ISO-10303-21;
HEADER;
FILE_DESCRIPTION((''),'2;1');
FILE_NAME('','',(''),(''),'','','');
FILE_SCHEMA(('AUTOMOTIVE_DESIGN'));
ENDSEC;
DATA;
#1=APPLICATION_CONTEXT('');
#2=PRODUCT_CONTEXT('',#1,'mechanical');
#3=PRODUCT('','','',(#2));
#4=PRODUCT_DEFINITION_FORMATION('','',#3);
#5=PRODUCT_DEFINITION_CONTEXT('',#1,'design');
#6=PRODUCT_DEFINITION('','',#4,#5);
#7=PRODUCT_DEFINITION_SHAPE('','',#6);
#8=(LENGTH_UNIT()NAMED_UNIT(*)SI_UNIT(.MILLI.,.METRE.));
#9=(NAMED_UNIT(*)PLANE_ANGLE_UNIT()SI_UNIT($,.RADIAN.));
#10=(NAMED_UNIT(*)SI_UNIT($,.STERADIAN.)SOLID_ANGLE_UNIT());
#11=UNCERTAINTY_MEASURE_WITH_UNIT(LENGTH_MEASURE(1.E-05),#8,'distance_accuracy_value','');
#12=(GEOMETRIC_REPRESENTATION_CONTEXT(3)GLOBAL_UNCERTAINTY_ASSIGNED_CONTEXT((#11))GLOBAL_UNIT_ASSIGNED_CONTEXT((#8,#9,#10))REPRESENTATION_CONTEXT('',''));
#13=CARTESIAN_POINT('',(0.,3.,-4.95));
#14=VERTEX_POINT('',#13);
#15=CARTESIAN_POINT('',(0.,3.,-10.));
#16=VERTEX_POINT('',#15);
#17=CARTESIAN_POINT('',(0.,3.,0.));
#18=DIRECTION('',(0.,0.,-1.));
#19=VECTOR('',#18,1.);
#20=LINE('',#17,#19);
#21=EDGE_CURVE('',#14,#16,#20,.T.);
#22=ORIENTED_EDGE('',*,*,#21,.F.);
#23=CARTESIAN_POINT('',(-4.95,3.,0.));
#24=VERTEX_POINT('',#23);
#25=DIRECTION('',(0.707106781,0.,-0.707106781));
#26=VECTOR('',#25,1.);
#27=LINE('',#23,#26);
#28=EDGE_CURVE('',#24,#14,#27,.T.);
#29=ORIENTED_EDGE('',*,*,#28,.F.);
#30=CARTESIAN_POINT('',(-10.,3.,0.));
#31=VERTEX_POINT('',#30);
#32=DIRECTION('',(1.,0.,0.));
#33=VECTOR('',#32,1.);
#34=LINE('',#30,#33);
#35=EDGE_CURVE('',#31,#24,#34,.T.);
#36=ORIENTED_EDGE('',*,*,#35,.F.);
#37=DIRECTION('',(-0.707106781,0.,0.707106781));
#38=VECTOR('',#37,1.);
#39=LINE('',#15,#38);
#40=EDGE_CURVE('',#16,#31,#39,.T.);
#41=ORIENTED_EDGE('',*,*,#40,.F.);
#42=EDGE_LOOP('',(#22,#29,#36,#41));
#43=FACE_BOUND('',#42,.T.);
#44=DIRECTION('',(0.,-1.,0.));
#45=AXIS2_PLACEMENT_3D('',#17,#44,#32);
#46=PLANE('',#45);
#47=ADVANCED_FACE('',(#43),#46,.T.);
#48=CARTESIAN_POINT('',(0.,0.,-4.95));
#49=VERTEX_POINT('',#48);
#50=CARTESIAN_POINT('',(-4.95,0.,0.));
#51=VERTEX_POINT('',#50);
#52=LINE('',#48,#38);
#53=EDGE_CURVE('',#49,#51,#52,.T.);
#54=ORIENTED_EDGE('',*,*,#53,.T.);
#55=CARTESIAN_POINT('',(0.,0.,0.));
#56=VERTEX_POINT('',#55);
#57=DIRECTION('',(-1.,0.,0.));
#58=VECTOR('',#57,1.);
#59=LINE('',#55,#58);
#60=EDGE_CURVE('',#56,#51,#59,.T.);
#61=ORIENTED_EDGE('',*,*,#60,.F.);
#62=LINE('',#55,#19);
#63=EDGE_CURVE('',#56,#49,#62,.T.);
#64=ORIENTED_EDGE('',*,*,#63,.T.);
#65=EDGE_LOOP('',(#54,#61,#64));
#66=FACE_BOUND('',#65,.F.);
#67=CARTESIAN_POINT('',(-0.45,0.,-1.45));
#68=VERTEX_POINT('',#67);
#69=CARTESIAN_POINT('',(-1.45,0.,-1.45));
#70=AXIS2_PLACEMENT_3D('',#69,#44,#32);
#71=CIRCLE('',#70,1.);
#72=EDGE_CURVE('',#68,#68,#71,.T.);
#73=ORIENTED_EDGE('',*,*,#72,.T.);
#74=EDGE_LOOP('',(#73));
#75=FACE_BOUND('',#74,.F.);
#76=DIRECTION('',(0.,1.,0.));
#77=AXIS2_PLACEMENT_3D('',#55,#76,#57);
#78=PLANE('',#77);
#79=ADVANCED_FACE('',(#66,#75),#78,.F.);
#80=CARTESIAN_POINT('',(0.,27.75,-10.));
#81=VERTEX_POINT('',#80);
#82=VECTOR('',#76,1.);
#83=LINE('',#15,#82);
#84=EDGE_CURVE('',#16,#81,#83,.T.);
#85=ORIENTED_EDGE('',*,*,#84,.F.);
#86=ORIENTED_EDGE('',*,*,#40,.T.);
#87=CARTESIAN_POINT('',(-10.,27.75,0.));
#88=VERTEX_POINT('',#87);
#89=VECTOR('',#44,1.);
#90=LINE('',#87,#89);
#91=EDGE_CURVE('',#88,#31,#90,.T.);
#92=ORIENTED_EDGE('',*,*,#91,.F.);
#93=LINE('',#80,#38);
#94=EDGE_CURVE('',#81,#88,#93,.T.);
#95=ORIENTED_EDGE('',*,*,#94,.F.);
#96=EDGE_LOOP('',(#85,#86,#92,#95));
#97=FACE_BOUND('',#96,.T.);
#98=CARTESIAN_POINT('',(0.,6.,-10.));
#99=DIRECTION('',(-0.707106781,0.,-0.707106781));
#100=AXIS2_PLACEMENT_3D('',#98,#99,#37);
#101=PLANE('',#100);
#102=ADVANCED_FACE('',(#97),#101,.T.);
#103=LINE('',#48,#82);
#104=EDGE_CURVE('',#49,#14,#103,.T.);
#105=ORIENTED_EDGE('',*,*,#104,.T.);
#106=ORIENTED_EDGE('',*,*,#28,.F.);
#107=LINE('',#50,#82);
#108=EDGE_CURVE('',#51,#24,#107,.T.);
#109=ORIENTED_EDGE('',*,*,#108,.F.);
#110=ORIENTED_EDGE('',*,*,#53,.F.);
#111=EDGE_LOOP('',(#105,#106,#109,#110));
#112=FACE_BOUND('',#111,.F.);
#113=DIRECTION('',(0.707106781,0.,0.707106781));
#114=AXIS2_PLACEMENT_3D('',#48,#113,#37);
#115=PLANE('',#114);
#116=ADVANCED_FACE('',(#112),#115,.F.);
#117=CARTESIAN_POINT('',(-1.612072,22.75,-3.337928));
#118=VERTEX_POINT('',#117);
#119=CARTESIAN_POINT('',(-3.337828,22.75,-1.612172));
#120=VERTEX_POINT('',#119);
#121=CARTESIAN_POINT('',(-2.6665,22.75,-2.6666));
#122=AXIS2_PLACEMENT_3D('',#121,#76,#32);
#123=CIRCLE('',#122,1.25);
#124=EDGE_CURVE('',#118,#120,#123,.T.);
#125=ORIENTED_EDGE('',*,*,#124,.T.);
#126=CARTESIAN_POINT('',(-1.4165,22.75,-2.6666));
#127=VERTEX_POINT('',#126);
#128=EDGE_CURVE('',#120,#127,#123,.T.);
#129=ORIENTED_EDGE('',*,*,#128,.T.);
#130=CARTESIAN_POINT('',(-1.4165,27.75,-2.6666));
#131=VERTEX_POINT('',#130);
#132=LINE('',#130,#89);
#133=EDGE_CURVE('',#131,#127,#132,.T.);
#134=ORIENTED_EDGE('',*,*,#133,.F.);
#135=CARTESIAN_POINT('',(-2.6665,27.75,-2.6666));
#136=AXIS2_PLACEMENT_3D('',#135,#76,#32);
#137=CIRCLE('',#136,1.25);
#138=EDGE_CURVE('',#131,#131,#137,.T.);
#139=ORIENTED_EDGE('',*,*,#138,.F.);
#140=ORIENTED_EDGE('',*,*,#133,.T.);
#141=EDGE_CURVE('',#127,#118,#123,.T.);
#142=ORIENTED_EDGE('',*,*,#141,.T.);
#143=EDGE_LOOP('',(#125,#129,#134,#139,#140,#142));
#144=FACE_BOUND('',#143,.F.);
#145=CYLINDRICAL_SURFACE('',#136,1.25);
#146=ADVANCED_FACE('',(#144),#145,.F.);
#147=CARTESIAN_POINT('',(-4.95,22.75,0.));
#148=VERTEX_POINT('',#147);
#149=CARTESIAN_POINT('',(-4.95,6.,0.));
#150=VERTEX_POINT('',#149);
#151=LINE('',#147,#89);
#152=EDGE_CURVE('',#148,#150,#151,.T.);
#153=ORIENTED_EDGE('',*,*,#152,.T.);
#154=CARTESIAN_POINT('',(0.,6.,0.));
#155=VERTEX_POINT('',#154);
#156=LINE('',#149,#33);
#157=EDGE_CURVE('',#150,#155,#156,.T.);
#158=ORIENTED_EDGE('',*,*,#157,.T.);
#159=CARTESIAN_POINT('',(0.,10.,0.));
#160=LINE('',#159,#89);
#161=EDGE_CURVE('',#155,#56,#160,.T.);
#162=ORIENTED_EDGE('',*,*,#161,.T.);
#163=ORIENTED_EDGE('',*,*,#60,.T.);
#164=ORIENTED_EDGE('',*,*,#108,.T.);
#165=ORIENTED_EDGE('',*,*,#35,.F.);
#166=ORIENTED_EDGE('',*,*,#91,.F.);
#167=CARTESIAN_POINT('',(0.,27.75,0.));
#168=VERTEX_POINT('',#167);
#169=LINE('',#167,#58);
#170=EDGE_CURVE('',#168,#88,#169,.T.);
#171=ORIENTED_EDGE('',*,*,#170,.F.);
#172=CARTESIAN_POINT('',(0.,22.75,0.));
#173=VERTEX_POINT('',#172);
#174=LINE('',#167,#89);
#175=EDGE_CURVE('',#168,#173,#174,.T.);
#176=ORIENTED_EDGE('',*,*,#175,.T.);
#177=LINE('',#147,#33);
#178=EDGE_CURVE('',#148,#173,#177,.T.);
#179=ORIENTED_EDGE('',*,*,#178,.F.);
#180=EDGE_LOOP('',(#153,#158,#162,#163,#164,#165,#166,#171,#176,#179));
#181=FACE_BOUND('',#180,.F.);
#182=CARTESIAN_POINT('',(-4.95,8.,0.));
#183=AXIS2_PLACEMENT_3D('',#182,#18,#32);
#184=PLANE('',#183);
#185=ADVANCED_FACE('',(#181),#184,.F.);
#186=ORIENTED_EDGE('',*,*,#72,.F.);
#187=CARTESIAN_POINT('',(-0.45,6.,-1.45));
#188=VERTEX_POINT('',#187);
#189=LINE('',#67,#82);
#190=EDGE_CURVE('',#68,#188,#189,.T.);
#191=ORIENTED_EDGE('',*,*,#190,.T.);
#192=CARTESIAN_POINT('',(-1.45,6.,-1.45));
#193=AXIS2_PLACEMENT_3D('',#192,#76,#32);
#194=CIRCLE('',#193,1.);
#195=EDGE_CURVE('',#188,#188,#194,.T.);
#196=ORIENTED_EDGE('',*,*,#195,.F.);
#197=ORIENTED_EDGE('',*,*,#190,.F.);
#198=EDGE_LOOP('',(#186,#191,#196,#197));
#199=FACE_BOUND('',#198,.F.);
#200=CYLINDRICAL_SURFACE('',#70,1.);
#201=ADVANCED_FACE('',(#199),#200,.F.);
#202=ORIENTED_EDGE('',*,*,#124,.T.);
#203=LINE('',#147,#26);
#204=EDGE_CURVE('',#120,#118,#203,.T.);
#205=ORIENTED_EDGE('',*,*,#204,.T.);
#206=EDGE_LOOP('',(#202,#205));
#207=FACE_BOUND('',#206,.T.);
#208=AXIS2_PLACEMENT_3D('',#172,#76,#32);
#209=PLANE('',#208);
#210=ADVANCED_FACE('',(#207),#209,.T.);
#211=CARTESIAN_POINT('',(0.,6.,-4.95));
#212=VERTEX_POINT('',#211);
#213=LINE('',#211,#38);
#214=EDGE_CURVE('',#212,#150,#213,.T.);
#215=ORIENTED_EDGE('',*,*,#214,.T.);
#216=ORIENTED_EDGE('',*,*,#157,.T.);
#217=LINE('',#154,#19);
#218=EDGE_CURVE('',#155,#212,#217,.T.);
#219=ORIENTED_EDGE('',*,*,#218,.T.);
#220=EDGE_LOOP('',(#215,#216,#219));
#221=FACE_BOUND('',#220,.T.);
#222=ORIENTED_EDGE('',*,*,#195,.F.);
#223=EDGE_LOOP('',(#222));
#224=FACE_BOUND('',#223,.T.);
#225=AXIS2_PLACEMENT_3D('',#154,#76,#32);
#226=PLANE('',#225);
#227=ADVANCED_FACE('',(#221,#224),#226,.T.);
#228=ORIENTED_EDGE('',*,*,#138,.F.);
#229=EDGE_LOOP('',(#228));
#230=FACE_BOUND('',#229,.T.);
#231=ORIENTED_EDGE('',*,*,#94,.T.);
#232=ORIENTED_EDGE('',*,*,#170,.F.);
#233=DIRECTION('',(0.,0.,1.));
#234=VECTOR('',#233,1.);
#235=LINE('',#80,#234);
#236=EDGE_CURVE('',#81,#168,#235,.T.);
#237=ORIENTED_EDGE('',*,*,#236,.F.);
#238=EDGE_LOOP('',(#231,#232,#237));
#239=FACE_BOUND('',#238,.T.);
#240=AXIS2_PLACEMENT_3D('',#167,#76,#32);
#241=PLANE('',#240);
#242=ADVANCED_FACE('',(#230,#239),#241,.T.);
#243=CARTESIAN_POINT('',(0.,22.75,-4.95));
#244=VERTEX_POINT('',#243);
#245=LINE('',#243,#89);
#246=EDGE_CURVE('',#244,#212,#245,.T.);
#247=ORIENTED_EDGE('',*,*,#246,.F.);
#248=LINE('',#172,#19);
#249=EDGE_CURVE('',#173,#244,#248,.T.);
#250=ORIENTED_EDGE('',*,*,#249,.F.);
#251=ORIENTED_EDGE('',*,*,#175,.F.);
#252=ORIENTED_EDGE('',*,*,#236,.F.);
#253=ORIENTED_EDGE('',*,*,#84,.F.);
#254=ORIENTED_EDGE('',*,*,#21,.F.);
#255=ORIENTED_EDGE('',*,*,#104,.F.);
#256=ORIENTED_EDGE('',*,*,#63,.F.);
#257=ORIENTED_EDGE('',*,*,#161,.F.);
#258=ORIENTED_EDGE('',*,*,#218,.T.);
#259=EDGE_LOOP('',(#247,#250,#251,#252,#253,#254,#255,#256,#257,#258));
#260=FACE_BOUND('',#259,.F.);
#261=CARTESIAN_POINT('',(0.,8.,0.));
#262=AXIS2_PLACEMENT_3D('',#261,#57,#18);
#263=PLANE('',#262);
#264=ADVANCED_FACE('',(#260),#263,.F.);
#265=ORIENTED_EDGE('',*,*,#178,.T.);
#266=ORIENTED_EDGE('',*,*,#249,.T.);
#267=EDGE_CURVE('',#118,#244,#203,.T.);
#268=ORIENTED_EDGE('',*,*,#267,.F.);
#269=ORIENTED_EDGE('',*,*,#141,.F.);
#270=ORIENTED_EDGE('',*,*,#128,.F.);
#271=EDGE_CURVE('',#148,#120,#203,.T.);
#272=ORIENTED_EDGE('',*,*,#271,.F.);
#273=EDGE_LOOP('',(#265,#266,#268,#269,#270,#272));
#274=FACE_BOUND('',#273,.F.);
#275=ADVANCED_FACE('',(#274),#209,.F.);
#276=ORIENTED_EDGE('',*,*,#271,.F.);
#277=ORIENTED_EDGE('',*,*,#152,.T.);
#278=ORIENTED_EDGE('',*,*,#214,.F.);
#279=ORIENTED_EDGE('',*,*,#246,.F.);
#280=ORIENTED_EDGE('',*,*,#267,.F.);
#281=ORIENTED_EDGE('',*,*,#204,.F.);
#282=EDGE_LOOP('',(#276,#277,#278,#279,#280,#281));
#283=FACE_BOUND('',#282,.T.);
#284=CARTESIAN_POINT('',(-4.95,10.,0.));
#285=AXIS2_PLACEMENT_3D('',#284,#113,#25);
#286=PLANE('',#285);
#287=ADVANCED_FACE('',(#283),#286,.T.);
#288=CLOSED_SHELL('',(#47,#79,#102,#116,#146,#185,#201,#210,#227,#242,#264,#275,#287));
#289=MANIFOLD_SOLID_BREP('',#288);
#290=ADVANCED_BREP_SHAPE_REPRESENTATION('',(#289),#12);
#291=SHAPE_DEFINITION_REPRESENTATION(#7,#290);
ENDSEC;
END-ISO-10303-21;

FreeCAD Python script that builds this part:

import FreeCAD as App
import Part
import Sketcher
from FreeCAD import Vector
Q = App.Units.Quantity

doc = App.newDocument("Part")
body = doc.addObject("PartDesign::Body", "Body")
body.AllowCompound = True

# Sketch on XZ plane
sketch1 = body.newObject("Sketcher::SketchObject", "Sketch")
sketch1.AttachmentSupport = (doc.getObject("XZ_Plane"), [""])
sketch1.MapMode = "FlatFace"
sketch1.addGeometry([
    Part.LineSegment(Vector(-5, 0, 0), Vector(0, 0, 0)),
    Part.LineSegment(Vector(0, 0, 0), Vector(0, -5, 0)),
    Part.LineSegment(Vector(0, -5, 0), Vector(-5, 0, 0)),
], False)
sketch1.addConstraint([
    Sketcher.Constraint("Coincident", 0, 2, 1, 1),
    Sketcher.Constraint("Coincident", 1, 2, 2, 1),
    Sketcher.Constraint("Coincident", 2, 2, 0, 1),
    Sketcher.Constraint("Horizontal", 0),
    Sketcher.Constraint("Vertical", 1),
    Sketcher.Constraint("Coincident", 0, 2, -1, 1),
    Sketcher.Constraint("Equal", 0, 1),
    Sketcher.Constraint("DistanceX", 0, 1, 0, 2, Q("4.95 mm")),
])
pad1 = body.newObject("PartDesign::Pad", "Pad")
pad1.Profile = sketch1
pad1.Length = 6
pad1.Reversed = True

# Sketch on XZ plane
sketch2 = body.newObject("Sketcher::SketchObject", "Sketch001")
sketch2.AttachmentSupport = (doc.getObject("XZ_Plane"), [""])
sketch2.MapMode = "FlatFace"
sketch2.AttachmentOffset = App.Placement(Vector(0, 0, -6), App.Rotation())
sketch2.addGeometry([
    Part.LineSegment(Vector(-10, 0, 0), Vector(0, 0, 0)),
    Part.LineSegment(Vector(0, 0, 0), Vector(0, -10, 0)),
    Part.LineSegment(Vector(0, -10, 0), Vector(-10, 0, 0)),
], False)
sketch2.addConstraint([
    Sketcher.Constraint("Coincident", 0, 2, 1, 1),
    Sketcher.Constraint("Coincident", 1, 2, 2, 1),
    Sketcher.Constraint("Coincident", 2, 2, 0, 1),
    Sketcher.Constraint("Horizontal", 0),
    Sketcher.Constraint("Vertical", 1),
    Sketcher.Constraint("Coincident", 0, 2, -1, 1),
    Sketcher.Constraint("Equal", 0, 1),
    Sketcher.Constraint("DistanceX", 0, 1, 0, 2, Q("10 mm")),
])
pad2 = body.newObject("PartDesign::Pad", "Pad001")
pad2.Profile = sketch2
pad2.Length = 2
pad2.Reversed = True

# Sketch on XZ plane
sketch3 = body.newObject("Sketcher::SketchObject", "Sketch002")
sketch3.AttachmentSupport = (doc.getObject("XZ_Plane"), [""])
sketch3.MapMode = "FlatFace"
sketch3.AttachmentOffset = App.Placement(Vector(0, 0, -8), App.Rotation())
sketch3.addGeometry([
    Part.LineSegment(Vector(0, -10, 0), Vector(-10, 0, 0)),
    Part.LineSegment(Vector(-10, 0, 0), Vector(-5, 0, 0)),
    Part.LineSegment(Vector(-5, 0, 0), Vector(0, -5, 0)),
    Part.LineSegment(Vector(0, -5, 0), Vector(0, -10, 0)),
], False)
sketch3.addConstraint([
    Sketcher.Constraint("Coincident", 0, 2, 1, 1),
    Sketcher.Constraint("Coincident", 1, 2, 2, 1),
    Sketcher.Constraint("Coincident", 2, 2, 3, 1),
    Sketcher.Constraint("Coincident", 3, 2, 0, 1),
    Sketcher.Constraint("Horizontal", 1),
    Sketcher.Constraint("Vertical", 3),
    Sketcher.Constraint("PointOnObject", 0, 2, -1),
    Sketcher.Constraint("PointOnObject", 2, 2, -2),
    Sketcher.Constraint("Parallel", 0, 2),
    Sketcher.Constraint("Equal", 1, 3),
    Sketcher.Constraint("DistanceX", 0, 2, -1, 1, Q("10 mm")),
    Sketcher.Constraint("DistanceX", 1, 1, 1, 2, Q("5.05 mm")),
])
pad3 = body.newObject("PartDesign::Pad", "Pad002")
pad3.Profile = sketch3
pad3.Length = 19.75
pad3.Reversed = True

# Sketch on XZ plane
sketch4 = body.newObject("Sketcher::SketchObject", "Sketch003")
sketch4.AttachmentSupport = (doc.getObject("XZ_Plane"), [""])
sketch4.MapMode = "FlatFace"
sketch4.AttachmentOffset = App.Placement(Vector(0, 0, -27.75), App.Rotation())
sketch4.addGeometry([
    Part.LineSegment(Vector(0, -5, 0), Vector(-5, 0, 0)),
    Part.LineSegment(Vector(-5, 0, 0), Vector(0, 0, 0)),
    Part.LineSegment(Vector(0, 0, 0), Vector(0, -5, 0)),
], False)
sketch4.addConstraint([
    Sketcher.Constraint("Coincident", 0, 2, 1, 1),
    Sketcher.Constraint("Coincident", 1, 2, 2, 1),
    Sketcher.Constraint("Coincident", 2, 2, 0, 1),
    Sketcher.Constraint("Horizontal", 1),
    Sketcher.Constraint("Vertical", 2),
    Sketcher.Constraint("Coincident", 1, 2, -1, 1),
    Sketcher.Constraint("Equal", 1, 2),
    Sketcher.Constraint("DistanceX", 1, 1, 1, 2, Q("4.95 mm")),
])
pad4 = body.newObject("PartDesign::Pad", "Pad003")
pad4.Profile = sketch4
pad4.Length = 5

# Sketch on XZ plane
sketch5 = body.newObject("Sketcher::SketchObject", "Sketch004")
sketch5.AttachmentSupport = (doc.getObject("XZ_Plane"), [""])
sketch5.MapMode = "FlatFace"
sketch5.AttachmentOffset = App.Placement(Vector(0, 0, -27.75), App.Rotation())
sketch5.addGeometry(Part.Circle(Vector(-2.7, -2.7, 0), Vector(0, 0, 1), 1.2), False)
sketch5.addConstraint([
    Sketcher.Constraint("Diameter", 0, Q("2.5 mm")),
    Sketcher.Constraint("DistanceX", 0, 3, -1, 1, Q("2.6665 mm")),
    Sketcher.Constraint("DistanceY", 0, 3, -1, 1, Q("2.6666 mm")),
])
pocket1 = body.newObject("PartDesign::Pocket", "Pocket")
pocket1.Profile = sketch5
pocket1.Length = 5
pocket1.Reversed = True

# Sketch on XZ plane
sketch6 = body.newObject("Sketcher::SketchObject", "Sketch005")
sketch6.AttachmentSupport = (doc.getObject("XZ_Plane"), [""])
sketch6.MapMode = "FlatFace"
sketch6.AttachmentOffset = App.Placement(Vector(0, 0, -8), App.Rotation())
sketch6.addGeometry([
    Part.LineSegment(Vector(0, 0, 0), Vector(0, -5, 0)),
    Part.LineSegment(Vector(0, -5, 0), Vector(-5, 0, 0)),
    Part.LineSegment(Vector(-5, 0, 0), Vector(0, 0, 0)),
], False)
sketch6.addConstraint([
    Sketcher.Constraint("Coincident", 0, 2, 1, 1),
    Sketcher.Constraint("Coincident", 1, 2, 2, 1),
    Sketcher.Constraint("Coincident", 2, 2, 0, 1),
    Sketcher.Constraint("Vertical", 0),
    Sketcher.Constraint("Horizontal", 2),
    Sketcher.Constraint("Coincident", 2, 2, -1, 1),
    Sketcher.Constraint("Equal", 2, 0),
    Sketcher.Constraint("DistanceX", 2, 1, 2, 2, Q("4.95 mm")),
])
pad5 = body.newObject("PartDesign::Pad", "Pad004")
pad5.Profile = sketch6
pad5.Length = 2
pad5.Reversed = True

# Sketch on XZ plane
sketch7 = body.newObject("Sketcher::SketchObject", "Sketch006")
sketch7.AttachmentSupport = (doc.getObject("XZ_Plane"), [""])
sketch7.MapMode = "FlatFace"
sketch7.addGeometry(Part.Circle(Vector(-1.4, -1.4, 0), Vector(0, 0, 1), 1), False)
sketch7.addConstraint([
    Sketcher.Constraint("Diameter", 0, Q("2 mm")),
    Sketcher.Constraint("DistanceX", 0, 3, -1, 1, Q("1.45 mm")),
    Sketcher.Constraint("DistanceY", 0, 3, -1, 1, Q("1.45 mm")),
])
pocket2 = body.newObject("PartDesign::Pocket", "Pocket001")
pocket2.Profile = sketch7
pocket2.Length = 10

# Sketch on XZ plane
sketch8 = body.newObject("Sketcher::SketchObject", "Sketch007")
sketch8.AttachmentSupport = (doc.getObject("XZ_Plane"), [""])
sketch8.MapMode = "FlatFace"
sketch8.AttachmentOffset = App.Placement(Vector(0, 0, -10), App.Rotation())
sketch8.addGeometry([
    Part.LineSegment(Vector(0, -5, 0), Vector(-5, 0, 0)),
    Part.LineSegment(Vector(-5, 0, 0), Vector(0, 0, 0)),
    Part.LineSegment(Vector(0, 0, 0), Vector(0, -5, 0)),
    Part.Circle(Vector(-1.4, -1.4, 0), Vector(0, 0, 1), 1),
], False)
sketch8.addConstraint([
    Sketcher.Constraint("Coincident", 0, 2, 1, 1),
    Sketcher.Constraint("Coincident", 1, 2, 2, 1),
    Sketcher.Constraint("Coincident", 2, 2, 0, 1),
    Sketcher.Constraint("Horizontal", 1),
    Sketcher.Constraint("Vertical", 2),
    Sketcher.Constraint("Coincident", 1, 2, -1, 1),
    Sketcher.Constraint("Equal", 1, 2),
    Sketcher.Constraint("Diameter", 3, Q("2 mm")),
    Sketcher.Constraint("DistanceX", 1, 1, 1, 2, Q("4.95 mm")),
    Sketcher.Constraint("DistanceX", 0, 2, 3, 3, Q("3.5 mm")),
    Sketcher.Constraint("DistanceY", 2, 2, 3, 3, Q("3.5 mm")),
])
pocket3 = body.newObject("PartDesign::Pocket", "Pocket002")
pocket3.Profile = sketch8
pocket3.Length = 4
pocket3.Reversed = True

# Sketch on XZ plane
sketch9 = body.newObject("Sketcher::SketchObject", "Sketch008")
sketch9.AttachmentSupport = (doc.getObject("XZ_Plane"), [""])
sketch9.MapMode = "FlatFace"
sketch9.AttachmentOffset = App.Placement(Vector(0, 0, -6), App.Rotation())
sketch9.addGeometry([
    Part.LineSegment(Vector(0, -5, 0), Vector(-5, 0, 0)),
    Part.LineSegment(Vector(-5, 0, 0), Vector(-10, 0, 0)),
    Part.LineSegment(Vector(-10, 0, 0), Vector(0, -10, 0)),
    Part.LineSegment(Vector(0, -10, 0), Vector(0, -5, 0)),
], False)
sketch9.addConstraint([
    Sketcher.Constraint("Coincident", 0, 2, 1, 1),
    Sketcher.Constraint("Coincident", 1, 2, 2, 1),
    Sketcher.Constraint("Coincident", 2, 2, 3, 1),
    Sketcher.Constraint("Coincident", 3, 2, 0, 1),
    Sketcher.Constraint("Horizontal", 1),
    Sketcher.Constraint("Vertical", 3),
    Sketcher.Constraint("PointOnObject", 0, 2, -1),
    Sketcher.Constraint("PointOnObject", 2, 2, -2),
    Sketcher.Constraint("Parallel", 0, 2),
    Sketcher.Constraint("Equal", 1, 3),
    Sketcher.Constraint("DistanceX", 1, 2, -1, 1, Q("10 mm")),
    Sketcher.Constraint("DistanceX", 1, 2, 1, 1, Q("5.05 mm")),
])
pad6 = body.newObject("PartDesign::Pad", "Pad005")
pad6.Profile = sketch9
pad6.Length = 3

doc.recompute()
